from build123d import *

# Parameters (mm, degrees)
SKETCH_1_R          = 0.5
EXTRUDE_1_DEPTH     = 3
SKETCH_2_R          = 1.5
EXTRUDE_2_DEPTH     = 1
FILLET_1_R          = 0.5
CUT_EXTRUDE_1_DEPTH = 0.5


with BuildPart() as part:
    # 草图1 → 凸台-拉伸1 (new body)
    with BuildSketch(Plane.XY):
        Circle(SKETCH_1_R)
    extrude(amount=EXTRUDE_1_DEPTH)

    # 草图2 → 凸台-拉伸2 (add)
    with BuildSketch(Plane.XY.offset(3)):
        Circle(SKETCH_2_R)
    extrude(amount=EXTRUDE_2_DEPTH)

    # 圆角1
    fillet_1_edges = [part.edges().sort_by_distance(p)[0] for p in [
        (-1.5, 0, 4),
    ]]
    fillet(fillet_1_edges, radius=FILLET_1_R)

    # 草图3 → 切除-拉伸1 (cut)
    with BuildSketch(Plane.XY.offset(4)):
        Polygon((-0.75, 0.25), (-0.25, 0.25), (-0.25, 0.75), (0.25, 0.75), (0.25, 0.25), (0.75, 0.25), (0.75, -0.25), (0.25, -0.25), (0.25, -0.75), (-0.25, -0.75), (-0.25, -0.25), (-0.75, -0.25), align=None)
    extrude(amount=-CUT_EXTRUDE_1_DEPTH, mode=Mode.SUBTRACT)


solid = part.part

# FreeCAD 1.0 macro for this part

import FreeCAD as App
import Part
import Sketcher

V = App.Vector
Q = App.Units.Quantity


def edges_at(feature, points):
    """Names of the edges that pass closest to the given points."""
    edges = feature.Shape.Edges
    near = lambda p: min(range(len(edges)), key=lambda i: edges[i].distToShape(Part.Vertex(*p))[0])
    return sorted({f"Edge{near(p) + 1}" for p in points})

doc = App.newDocument("Part")
body = doc.addObject("PartDesign::Body", "Body")

# Sketch on XY plane
sketch1 = body.newObject("Sketcher::SketchObject", "Sketch")
sketch1.AttachmentSupport = (doc.getObject("XY_Plane"), [""])
sketch1.MapMode = "FlatFace"
sketch1.addGeometry(Part.Circle(V(0, 0, 0), V(0, 0, 1), 0.5), False)
sketch1.addConstraint([
    Sketcher.Constraint("Coincident", 0, 3, -1, 1),
    Sketcher.Constraint("Diameter", 0, Q("1 mm")),
])
pad1 = body.newObject("PartDesign::Pad", "Pad")
pad1.Profile = sketch1
pad1.Length = 3

# Sketch on XY plane
sketch2 = body.newObject("Sketcher::SketchObject", "Sketch001")
sketch2.AttachmentSupport = (doc.getObject("XY_Plane"), [""])
sketch2.MapMode = "FlatFace"
sketch2.AttachmentOffset = App.Placement(V(0, 0, 3), App.Rotation())
sketch2.addGeometry(Part.Circle(V(0, 0, 0), V(0, 0, 1), 1.5), False)
sketch2.addConstraint([
    Sketcher.Constraint("Coincident", 0, 3, -1, 1),
    Sketcher.Constraint("Diameter", 0, Q("3 mm")),
])
pad2 = body.newObject("PartDesign::Pad", "Pad001")
pad2.Profile = sketch2
pad2.Length = 1
doc.recompute()

fillet = body.newObject("PartDesign::Fillet", "Fillet")
fillet.Base = (pad2, edges_at(pad2, [(-1.5, 0, 4)]))
fillet.Radius = 0.5

# Sketch on XY plane
sketch3 = body.newObject("Sketcher::SketchObject", "Sketch002")
sketch3.AttachmentSupport = (doc.getObject("XY_Plane"), [""])
sketch3.MapMode = "FlatFace"
sketch3.AttachmentOffset = App.Placement(V(0, 0, 4), App.Rotation())
sketch3.addGeometry([
    Part.LineSegment(V(-0.2, 0.2, 0), V(-0.8, 0.2, 0)),  # 0
    Part.LineSegment(V(-0.8, 0.2, 0), V(-0.8, -0.2, 0)),  # 1
    Part.LineSegment(V(-0.8, -0.2, 0), V(-0.2, -0.2, 0)),  # 2
    Part.LineSegment(V(-0.2, -0.2, 0), V(-0.2, -0.8, 0)),  # 3
    Part.LineSegment(V(-0.2, -0.8, 0), V(0.2, -0.8, 0)),  # 4
    Part.LineSegment(V(0.2, -0.8, 0), V(0.2, -0.2, 0)),  # 5
    Part.LineSegment(V(0.2, -0.2, 0), V(0.8, -0.2, 0)),  # 6
    Part.LineSegment(V(0.8, -0.2, 0), V(0.8, 0.2, 0)),  # 7
    Part.LineSegment(V(0.8, 0.2, 0), V(0.2, 0.2, 0)),  # 8
    Part.LineSegment(V(0.2, 0.2, 0), V(0.2, 0.8, 0)),  # 9
    Part.LineSegment(V(0.2, 0.8, 0), V(-0.2, 0.8, 0)),  # 10
    Part.LineSegment(V(-0.2, 0.8, 0), V(-0.2, 0.2, 0)),  # 11
], False)
sketch3.addConstraint([
    Sketcher.Constraint("Coincident", 0, 2, 1, 1),
    Sketcher.Constraint("Coincident", 1, 2, 2, 1),
    Sketcher.Constraint("Coincident", 2, 2, 3, 1),
    Sketcher.Constraint("Coincident", 3, 2, 4, 1),
    Sketcher.Constraint("Coincident", 4, 2, 5, 1),
    Sketcher.Constraint("Coincident", 5, 2, 6, 1),
    Sketcher.Constraint("Coincident", 6, 2, 7, 1),
    Sketcher.Constraint("Coincident", 7, 2, 8, 1),
    Sketcher.Constraint("Coincident", 8, 2, 9, 1),
    Sketcher.Constraint("Coincident", 9, 2, 10, 1),
    Sketcher.Constraint("Coincident", 10, 2, 11, 1),
    Sketcher.Constraint("Coincident", 11, 2, 0, 1),
    Sketcher.Constraint("Horizontal", 0),
    Sketcher.Constraint("Vertical", 1),
    Sketcher.Constraint("Horizontal", 2),
    Sketcher.Constraint("Vertical", 3),
    Sketcher.Constraint("Horizontal", 4),
    Sketcher.Constraint("Vertical", 5),
    Sketcher.Constraint("Horizontal", 6),
    Sketcher.Constraint("Vertical", 7),
    Sketcher.Constraint("Horizontal", 8),
    Sketcher.Constraint("Vertical", 9),
    Sketcher.Constraint("Horizontal", 10),
    Sketcher.Constraint("Vertical", 11),
    Sketcher.Constraint("Symmetric", 0, 2, 6, 2, -1, 1),
    Sketcher.Constraint("Symmetric", 2, 2, 8, 2, -1, 1),
    Sketcher.Constraint("Symmetric", 4, 2, 10, 2, -1, 1),
    Sketcher.Constraint("Symmetric", 2, 2, 5, 2, -2),
    Sketcher.Constraint("Equal", 2, 4),
    Sketcher.Constraint("Equal", 10, 1),
    Sketcher.Constraint("Equal", 1, 3),
    Sketcher.Constraint("DistanceX", 0, 2, 0, 1, Q("0.5 mm")),
])
pocket1 = body.newObject("PartDesign::Pocket", "Pocket")
pocket1.Profile = sketch3
pocket1.Length = 0.5

doc.recompute()
